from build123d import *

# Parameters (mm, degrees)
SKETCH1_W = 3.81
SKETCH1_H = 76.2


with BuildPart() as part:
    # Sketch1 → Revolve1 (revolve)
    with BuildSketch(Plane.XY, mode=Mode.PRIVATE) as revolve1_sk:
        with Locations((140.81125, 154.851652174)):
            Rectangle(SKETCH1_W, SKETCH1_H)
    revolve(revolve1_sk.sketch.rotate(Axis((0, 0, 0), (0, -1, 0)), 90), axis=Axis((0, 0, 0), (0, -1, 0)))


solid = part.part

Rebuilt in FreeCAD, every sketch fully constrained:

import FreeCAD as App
import Part
import Sketcher

V = App.Vector
Q = App.Units.Quantity

doc = App.newDocument("Part")
body = doc.addObject("PartDesign::Body", "Body")

sketch1 = doc.addObject("Sketcher::SketchObject", "Sketch")
body.addObject(sketch1)
sketch1.AttachmentSupport = (doc.XY_Plane, [""])
sketch1.MapMode = "FlatFace"
sketch1.addGeometry([
    Part.LineSegment(V(138.9, 193, 0), V(138.9, 116.8, 0)),
    Part.LineSegment(V(138.9, 116.8, 0), V(142.7, 116.8, 0)),
    Part.LineSegment(V(142.7, 116.8, 0), V(142.7, 193, 0)),
    Part.LineSegment(V(142.7, 193, 0), V(138.9, 193, 0)),
], False)
sketch1.addConstraint([
    Sketcher.Constraint("Coincident", 0, 2, 1, 1),
    Sketcher.Constraint("Coincident", 1, 2, 2, 1),
    Sketcher.Constraint("Coincident", 2, 2, 3, 1),
    Sketcher.Constraint("Coincident", 3, 2, 0, 1),
    Sketcher.Constraint("Vertical", 0),
    Sketcher.Constraint("Horizontal", 1),
    Sketcher.Constraint("Vertical", 2),
    Sketcher.Constraint("Horizontal", 3),
    Sketcher.Constraint("DistanceY", 0, 2, 0, 1, Q("3 in")),
    Sketcher.Constraint("DistanceX", 1, 1, 1, 2, Q("0.15 in")),
    Sketcher.Constraint("DistanceX", -1, 1, 0, 2, Q("5.46875 in")),
    Sketcher.Constraint("DistanceY", -1, 1, 0, 2, 116.751652),
])
revolution = doc.addObject("PartDesign::Revolution", "Revolution")
body.addObject(revolution)
revolution.Profile = sketch1
revolution.ReferenceAxis = (sketch1, ["V_Axis"])
revolution.Angle = 360

doc.recompute()
